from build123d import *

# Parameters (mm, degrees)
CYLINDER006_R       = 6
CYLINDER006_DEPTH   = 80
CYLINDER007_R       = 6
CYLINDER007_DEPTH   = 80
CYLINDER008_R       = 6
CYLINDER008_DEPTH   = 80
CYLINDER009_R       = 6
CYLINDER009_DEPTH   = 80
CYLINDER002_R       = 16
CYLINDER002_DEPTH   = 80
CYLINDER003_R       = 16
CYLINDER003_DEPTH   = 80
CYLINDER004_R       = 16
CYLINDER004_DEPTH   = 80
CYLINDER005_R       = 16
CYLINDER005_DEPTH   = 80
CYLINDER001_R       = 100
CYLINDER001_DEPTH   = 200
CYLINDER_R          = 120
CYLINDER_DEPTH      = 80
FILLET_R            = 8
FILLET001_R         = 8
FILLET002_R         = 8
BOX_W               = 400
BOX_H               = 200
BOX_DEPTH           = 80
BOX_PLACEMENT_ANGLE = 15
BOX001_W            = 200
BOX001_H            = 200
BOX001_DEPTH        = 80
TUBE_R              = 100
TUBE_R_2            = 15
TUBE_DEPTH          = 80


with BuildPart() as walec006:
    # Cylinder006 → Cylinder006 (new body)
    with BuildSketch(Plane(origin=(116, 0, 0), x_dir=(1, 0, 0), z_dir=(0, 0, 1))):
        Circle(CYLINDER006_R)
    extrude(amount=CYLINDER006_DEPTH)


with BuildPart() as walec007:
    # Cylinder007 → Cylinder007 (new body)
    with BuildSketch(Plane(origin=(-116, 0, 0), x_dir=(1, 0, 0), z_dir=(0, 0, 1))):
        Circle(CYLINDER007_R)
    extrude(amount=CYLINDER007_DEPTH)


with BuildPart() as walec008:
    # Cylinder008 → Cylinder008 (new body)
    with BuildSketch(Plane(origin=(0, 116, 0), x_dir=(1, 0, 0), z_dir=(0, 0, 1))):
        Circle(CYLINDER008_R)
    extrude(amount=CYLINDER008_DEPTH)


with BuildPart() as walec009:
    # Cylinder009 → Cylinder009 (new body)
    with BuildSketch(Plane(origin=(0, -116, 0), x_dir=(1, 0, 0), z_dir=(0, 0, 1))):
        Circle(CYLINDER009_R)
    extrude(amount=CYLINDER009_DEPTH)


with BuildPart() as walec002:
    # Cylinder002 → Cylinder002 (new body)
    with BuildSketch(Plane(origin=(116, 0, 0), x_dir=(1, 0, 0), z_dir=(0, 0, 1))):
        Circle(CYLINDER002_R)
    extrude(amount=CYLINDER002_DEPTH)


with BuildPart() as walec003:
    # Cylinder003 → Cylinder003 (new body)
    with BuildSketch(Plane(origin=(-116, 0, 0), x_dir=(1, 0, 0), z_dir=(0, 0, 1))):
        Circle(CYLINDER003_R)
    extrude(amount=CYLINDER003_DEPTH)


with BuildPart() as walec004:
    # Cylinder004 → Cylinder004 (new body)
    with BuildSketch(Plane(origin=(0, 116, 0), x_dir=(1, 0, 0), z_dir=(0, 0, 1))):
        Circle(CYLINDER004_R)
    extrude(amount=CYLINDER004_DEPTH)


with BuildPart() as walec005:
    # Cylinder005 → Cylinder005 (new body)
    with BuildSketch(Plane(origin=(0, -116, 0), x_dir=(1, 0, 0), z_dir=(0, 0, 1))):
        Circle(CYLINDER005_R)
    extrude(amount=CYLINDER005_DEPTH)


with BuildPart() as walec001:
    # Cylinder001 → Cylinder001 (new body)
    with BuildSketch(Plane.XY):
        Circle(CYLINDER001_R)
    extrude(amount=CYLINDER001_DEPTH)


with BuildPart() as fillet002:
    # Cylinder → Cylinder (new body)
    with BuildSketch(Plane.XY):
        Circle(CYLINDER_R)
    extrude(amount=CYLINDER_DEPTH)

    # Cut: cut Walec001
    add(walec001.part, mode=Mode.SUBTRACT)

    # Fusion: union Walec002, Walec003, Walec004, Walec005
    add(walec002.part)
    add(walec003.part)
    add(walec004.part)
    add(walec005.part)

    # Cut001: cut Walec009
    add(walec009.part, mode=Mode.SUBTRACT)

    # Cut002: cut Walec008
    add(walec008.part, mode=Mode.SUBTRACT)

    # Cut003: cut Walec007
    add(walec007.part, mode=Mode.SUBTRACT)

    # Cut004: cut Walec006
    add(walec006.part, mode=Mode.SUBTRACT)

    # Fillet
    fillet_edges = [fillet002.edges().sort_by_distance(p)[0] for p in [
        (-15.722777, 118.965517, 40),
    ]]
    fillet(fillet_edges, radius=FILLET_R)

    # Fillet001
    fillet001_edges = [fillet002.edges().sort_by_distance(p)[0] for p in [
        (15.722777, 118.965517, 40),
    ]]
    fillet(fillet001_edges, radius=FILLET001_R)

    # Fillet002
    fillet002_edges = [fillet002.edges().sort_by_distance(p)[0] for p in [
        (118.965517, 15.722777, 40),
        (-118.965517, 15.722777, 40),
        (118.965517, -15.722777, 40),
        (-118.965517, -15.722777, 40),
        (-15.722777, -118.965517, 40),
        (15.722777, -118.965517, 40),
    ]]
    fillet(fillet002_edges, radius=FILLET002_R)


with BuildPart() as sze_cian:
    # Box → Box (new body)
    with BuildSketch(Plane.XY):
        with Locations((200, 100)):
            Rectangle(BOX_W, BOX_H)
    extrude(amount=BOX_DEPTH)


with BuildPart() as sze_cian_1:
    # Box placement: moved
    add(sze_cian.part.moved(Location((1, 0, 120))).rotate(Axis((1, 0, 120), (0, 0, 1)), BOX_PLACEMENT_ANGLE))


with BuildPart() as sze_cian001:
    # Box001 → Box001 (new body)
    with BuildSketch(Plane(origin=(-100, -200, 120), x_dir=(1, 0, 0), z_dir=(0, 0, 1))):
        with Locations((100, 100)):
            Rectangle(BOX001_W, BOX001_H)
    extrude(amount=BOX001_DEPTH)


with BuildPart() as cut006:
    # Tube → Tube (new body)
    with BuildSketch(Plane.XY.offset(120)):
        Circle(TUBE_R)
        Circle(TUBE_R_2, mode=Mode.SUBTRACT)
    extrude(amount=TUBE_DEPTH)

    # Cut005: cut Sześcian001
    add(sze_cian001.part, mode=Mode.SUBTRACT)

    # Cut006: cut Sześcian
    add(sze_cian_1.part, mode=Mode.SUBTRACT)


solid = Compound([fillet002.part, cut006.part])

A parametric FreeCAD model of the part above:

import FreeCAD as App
import Part
import Sketcher
from FreeCAD import Vector


def edges_at(feature, points):
    """Names of the edges that pass closest to the given points."""
    edges = feature.Shape.Edges
    near = lambda p: min(range(len(edges)), key=lambda i: edges[i].distToShape(Part.Vertex(*p))[0])
    return sorted({f"Edge{near(p) + 1}" for p in points})


def add_polygon(sketch, points):
    """Adds a closed chain of lines whose ends are joined by coincident constraints."""
    first, n = sketch.GeometryCount, len(points)
    for a, b in zip(points, points[1:] + points[:1]):
        sketch.addGeometry(Part.LineSegment(App.Vector(*a, 0), App.Vector(*b, 0)), False)
    for i in range(n):
        sketch.addConstraint(Sketcher.Constraint("Coincident", first + i, 2, first + (i + 1) % n, 1))

doc = App.newDocument("Part")
body = doc.addObject("PartDesign::Body", "Body")

sketch1 = body.newObject("Sketcher::SketchObject", "Sketch")
sketch1.AttachmentSupport = (doc.getObject("XY_Plane"), [""])
sketch1.MapMode = "FlatFace"
sketch1.addGeometry(Part.Circle(Vector(116, 0, 0), Vector(0, 0, 1), 6), False)
sketch1.addConstraint([
    Sketcher.Constraint("PointOnObject", 0, 3, -1),
    Sketcher.Constraint("Diameter", 0, 12.0),
    Sketcher.Constraint("DistanceX", -1, 1, 0, 3, 116.0),
])
pad1 = body.newObject("PartDesign::Pad", "Pad")
pad1.Profile = sketch1
pad1.Length = 80
body2 = doc.addObject("PartDesign::Body", "Body001")

sketch2 = body2.newObject("Sketcher::SketchObject", "Sketch001")
sketch2.AttachmentSupport = (doc.getObject("XY_Plane001"), [""])
sketch2.MapMode = "FlatFace"
sketch2.addGeometry(Part.Circle(Vector(-116, 0, 0), Vector(0, 0, 1), 6), False)
sketch2.addConstraint([
    Sketcher.Constraint("PointOnObject", 0, 3, -1),
    Sketcher.Constraint("Diameter", 0, 12.0),
    Sketcher.Constraint("DistanceX", 0, 3, -1, 1, 116.0),
])
pad2 = body2.newObject("PartDesign::Pad", "Pad001")
pad2.Profile = sketch2
pad2.Length = 80
body3 = doc.addObject("PartDesign::Body", "Body002")

sketch3 = body3.newObject("Sketcher::SketchObject", "Sketch002")
sketch3.AttachmentSupport = (doc.getObject("XY_Plane002"), [""])
sketch3.MapMode = "FlatFace"
sketch3.addGeometry(Part.Circle(Vector(0, 116, 0), Vector(0, 0, 1), 6), False)
sketch3.addConstraint([
    Sketcher.Constraint("PointOnObject", 0, 3, -2),
    Sketcher.Constraint("Diameter", 0, 12.0),
    Sketcher.Constraint("DistanceY", -1, 1, 0, 3, 116.0),
])
pad3 = body3.newObject("PartDesign::Pad", "Pad002")
pad3.Profile = sketch3
pad3.Length = 80
body4 = doc.addObject("PartDesign::Body", "Body003")

sketch4 = body4.newObject("Sketcher::SketchObject", "Sketch003")
sketch4.AttachmentSupport = (doc.getObject("XY_Plane003"), [""])
sketch4.MapMode = "FlatFace"
sketch4.addGeometry(Part.Circle(Vector(0, -116, 0), Vector(0, 0, 1), 6), False)
sketch4.addConstraint([
    Sketcher.Constraint("PointOnObject", 0, 3, -2),
    Sketcher.Constraint("Diameter", 0, 12.0),
    Sketcher.Constraint("DistanceY", 0, 3, -1, 1, 116.0),
])
pad4 = body4.newObject("PartDesign::Pad", "Pad003")
pad4.Profile = sketch4
pad4.Length = 80
body5 = doc.addObject("PartDesign::Body", "Body004")

sketch5 = body5.newObject("Sketcher::SketchObject", "Sketch004")
sketch5.AttachmentSupport = (doc.getObject("XY_Plane004"), [""])
sketch5.MapMode = "FlatFace"
sketch5.addGeometry(Part.Circle(Vector(116, 0, 0), Vector(0, 0, 1), 16), False)
sketch5.addConstraint([
    Sketcher.Constraint("PointOnObject", 0, 3, -1),
    Sketcher.Constraint("Diameter", 0, 32.0),
    Sketcher.Constraint("DistanceX", -1, 1, 0, 3, 116.0),
])
pad5 = body5.newObject("PartDesign::Pad", "Pad004")
pad5.Profile = sketch5
pad5.Length = 80
body6 = doc.addObject("PartDesign::Body", "Body005")

sketch6 = body6.newObject("Sketcher::SketchObject", "Sketch005")
sketch6.AttachmentSupport = (doc.getObject("XY_Plane005"), [""])
sketch6.MapMode = "FlatFace"
sketch6.addGeometry(Part.Circle(Vector(-116, 0, 0), Vector(0, 0, 1), 16), False)
sketch6.addConstraint([
    Sketcher.Constraint("PointOnObject", 0, 3, -1),
    Sketcher.Constraint("Diameter", 0, 32.0),
    Sketcher.Constraint("DistanceX", 0, 3, -1, 1, 116.0),
])
pad6 = body6.newObject("PartDesign::Pad", "Pad005")
pad6.Profile = sketch6
pad6.Length = 80
body7 = doc.addObject("PartDesign::Body", "Body006")

sketch7 = body7.newObject("Sketcher::SketchObject", "Sketch006")
sketch7.AttachmentSupport = (doc.getObject("XY_Plane006"), [""])
sketch7.MapMode = "FlatFace"
sketch7.addGeometry(Part.Circle(Vector(0, 116, 0), Vector(0, 0, 1), 16), False)
sketch7.addConstraint([
    Sketcher.Constraint("PointOnObject", 0, 3, -2),
    Sketcher.Constraint("Diameter", 0, 32.0),
    Sketcher.Constraint("DistanceY", -1, 1, 0, 3, 116.0),
])
pad7 = body7.newObject("PartDesign::Pad", "Pad006")
pad7.Profile = sketch7
pad7.Length = 80
body8 = doc.addObject("PartDesign::Body", "Body007")

sketch8 = body8.newObject("Sketcher::SketchObject", "Sketch007")
sketch8.AttachmentSupport = (doc.getObject("XY_Plane007"), [""])
sketch8.MapMode = "FlatFace"
sketch8.addGeometry(Part.Circle(Vector(0, -116, 0), Vector(0, 0, 1), 16), False)
sketch8.addConstraint([
    Sketcher.Constraint("PointOnObject", 0, 3, -2),
    Sketcher.Constraint("Diameter", 0, 32.0),
    Sketcher.Constraint("DistanceY", 0, 3, -1, 1, 116.0),
])
pad8 = body8.newObject("PartDesign::Pad", "Pad007")
pad8.Profile = sketch8
pad8.Length = 80
body9 = doc.addObject("PartDesign::Body", "Body008")

sketch9 = body9.newObject("Sketcher::SketchObject", "Sketch008")
sketch9.AttachmentSupport = (doc.getObject("XY_Plane008"), [""])
sketch9.MapMode = "FlatFace"
sketch9.addGeometry(Part.Circle(Vector(0, 0, 0), Vector(0, 0, 1), 100), False)
sketch9.addConstraint([
    Sketcher.Constraint("Coincident", 0, 3, -1, 1),
    Sketcher.Constraint("Diameter", 0, 200.0),
])
pad9 = body9.newObject("PartDesign::Pad", "Pad008")
pad9.Profile = sketch9
pad9.Length = 200
body10 = doc.addObject("PartDesign::Body", "Body009")

sketch10 = body10.newObject("Sketcher::SketchObject", "Sketch009")
sketch10.AttachmentSupport = (doc.getObject("XY_Plane009"), [""])
sketch10.MapMode = "FlatFace"
sketch10.addGeometry(Part.Circle(Vector(0, 0, 0), Vector(0, 0, 1), 120), False)
sketch10.addConstraint([
    Sketcher.Constraint("Coincident", 0, 3, -1, 1),
    Sketcher.Constraint("Diameter", 0, 240.0),
])
pad10 = body10.newObject("PartDesign::Pad", "Pad009")
pad10.Profile = sketch10
pad10.Length = 80
doc.recompute()

boolean = body10.newObject("PartDesign::Boolean", "Boolean")
boolean.Type = "Cut"
boolean.addObjects([body9])
doc.recompute()

boolean2 = body10.newObject("PartDesign::Boolean", "Boolean001")
boolean2.Type = "Fuse"
boolean2.addObjects([body5])
doc.recompute()

boolean3 = body10.newObject("PartDesign::Boolean", "Boolean002")
boolean3.Type = "Fuse"
boolean3.addObjects([body6])
doc.recompute()

boolean4 = body10.newObject("PartDesign::Boolean", "Boolean003")
boolean4.Type = "Fuse"
boolean4.addObjects([body7])
doc.recompute()

boolean5 = body10.newObject("PartDesign::Boolean", "Boolean004")
boolean5.Type = "Fuse"
boolean5.addObjects([body8])
doc.recompute()

boolean6 = body10.newObject("PartDesign::Boolean", "Boolean005")
boolean6.Type = "Cut"
boolean6.addObjects([body4])
doc.recompute()

boolean7 = body10.newObject("PartDesign::Boolean", "Boolean006")
boolean7.Type = "Cut"
boolean7.addObjects([body3])
doc.recompute()

boolean8 = body10.newObject("PartDesign::Boolean", "Boolean007")
boolean8.Type = "Cut"
boolean8.addObjects([body2])
doc.recompute()

boolean9 = body10.newObject("PartDesign::Boolean", "Boolean008")
boolean9.Type = "Cut"
boolean9.addObjects([body])
doc.recompute()

fillet = body10.newObject("PartDesign::Fillet", "Fillet")
fillet.Base = (boolean9, edges_at(boolean9, [(-15.723, 118.966, 40)]))
fillet.Radius = 8
doc.recompute()

fillet2 = body10.newObject("PartDesign::Fillet", "Fillet001")
fillet2.Base = (fillet, edges_at(fillet, [(15.723, 118.966, 40)]))
fillet2.Radius = 8
doc.recompute()

fillet3 = body10.newObject("PartDesign::Fillet", "Fillet002")
fillet3.Base = (fillet2, edges_at(fillet2, [
    (118.966, 15.723, 40),
    (-118.966, 15.723, 40),
    (118.966, -15.723, 40),
    (-118.966, -15.723, 40),
    (-15.723, -118.966, 40),
    (15.723, -118.966, 40),
]))
fillet3.Radius = 8
body11 = doc.addObject("PartDesign::Body", "Body010")

sketch11 = body11.newObject("Sketcher::SketchObject", "Sketch010")
sketch11.AttachmentSupport = (doc.getObject("XY_Plane010"), [""])
sketch11.MapMode = "FlatFace"
add_polygon(sketch11, [(0, 200), (0, 0), (400, 0), (400, 200)])
sketch11.addConstraint([
    Sketcher.Constraint("Vertical", 0),
    Sketcher.Constraint("Horizontal", 1),
    Sketcher.Constraint("Vertical", 2),
    Sketcher.Constraint("Horizontal", 3),
    Sketcher.Constraint("Coincident", 0, 2, -1, 1),
    Sketcher.Constraint("DistanceX", 1, 1, 1, 2, 400.0),
    Sketcher.Constraint("DistanceY", 0, 2, 0, 1, 200.0),
])
pad11 = body11.newObject("PartDesign::Pad", "Pad010")
pad11.Profile = sketch11
pad11.Length = 80
body12 = doc.addObject("PartDesign::Body", "Body011")
doc.recompute()

body11.Placement = App.Placement(Vector(1, 0, 120), App.Rotation(Vector(0, 0, 1), 15))
boolean10 = body12.newObject("PartDesign::Boolean", "Boolean009")
boolean10.Type = "Fuse"
boolean10.addObjects([body11])
body13 = doc.addObject("PartDesign::Body", "Body012")

sketch12 = body13.newObject("Sketcher::SketchObject", "Sketch011")
sketch12.AttachmentSupport = (doc.getObject("XY_Plane012"), [""])
sketch12.MapMode = "FlatFace"
sketch12.AttachmentOffset = App.Placement(Vector(0, 0, 120), App.Rotation())
add_polygon(sketch12, [(-100, 0), (-100, -200), (100, -200), (100, 0)])
sketch12.addConstraint([
    Sketcher.Constraint("Vertical", 0),
    Sketcher.Constraint("Horizontal", 1),
    Sketcher.Constraint("Vertical", 2),
    Sketcher.Constraint("Horizontal", 3),
    Sketcher.Constraint("Symmetric", 2, 2, 3, 2, -1, 1),
    Sketcher.Constraint("Equal", 3, 0),
    Sketcher.Constraint("DistanceX", 1, 1, 1, 2, 200.0),
])
pad12 = body13.newObject("PartDesign::Pad", "Pad011")
pad12.Profile = sketch12
pad12.Length = 80
body14 = doc.addObject("PartDesign::Body", "Body013")
body14.AllowCompound = True

sketch13 = body14.newObject("Sketcher::SketchObject", "Sketch012")
sketch13.AttachmentSupport = (doc.getObject("XY_Plane013"), [""])
sketch13.MapMode = "FlatFace"
sketch13.AttachmentOffset = App.Placement(Vector(0, 0, 120), App.Rotation())
sketch13.addGeometry([
    Part.Circle(Vector(0, 0, 0), Vector(0, 0, 1), 100),
    Part.Circle(Vector(0, 0, 0), Vector(0, 0, 1), 15),
], False)
sketch13.addConstraint([
    Sketcher.Constraint("Coincident", 0, 3, -1, 1),
    Sketcher.Constraint("Coincident", 1, 3, -1, 1),
    Sketcher.Constraint("Diameter", 0, 200.0),
    Sketcher.Constraint("Diameter", 1, 30.0),
])
pad13 = body14.newObject("PartDesign::Pad", "Pad012")
pad13.Profile = sketch13
pad13.Length = 80
doc.recompute()

boolean11 = body14.newObject("PartDesign::Boolean", "Boolean010")
boolean11.Type = "Cut"
boolean11.addObjects([body13])
doc.recompute()

boolean12 = body14.newObject("PartDesign::Boolean", "Boolean011")
boolean12.Type = "Cut"
boolean12.addObjects([body12])

doc.recompute()
